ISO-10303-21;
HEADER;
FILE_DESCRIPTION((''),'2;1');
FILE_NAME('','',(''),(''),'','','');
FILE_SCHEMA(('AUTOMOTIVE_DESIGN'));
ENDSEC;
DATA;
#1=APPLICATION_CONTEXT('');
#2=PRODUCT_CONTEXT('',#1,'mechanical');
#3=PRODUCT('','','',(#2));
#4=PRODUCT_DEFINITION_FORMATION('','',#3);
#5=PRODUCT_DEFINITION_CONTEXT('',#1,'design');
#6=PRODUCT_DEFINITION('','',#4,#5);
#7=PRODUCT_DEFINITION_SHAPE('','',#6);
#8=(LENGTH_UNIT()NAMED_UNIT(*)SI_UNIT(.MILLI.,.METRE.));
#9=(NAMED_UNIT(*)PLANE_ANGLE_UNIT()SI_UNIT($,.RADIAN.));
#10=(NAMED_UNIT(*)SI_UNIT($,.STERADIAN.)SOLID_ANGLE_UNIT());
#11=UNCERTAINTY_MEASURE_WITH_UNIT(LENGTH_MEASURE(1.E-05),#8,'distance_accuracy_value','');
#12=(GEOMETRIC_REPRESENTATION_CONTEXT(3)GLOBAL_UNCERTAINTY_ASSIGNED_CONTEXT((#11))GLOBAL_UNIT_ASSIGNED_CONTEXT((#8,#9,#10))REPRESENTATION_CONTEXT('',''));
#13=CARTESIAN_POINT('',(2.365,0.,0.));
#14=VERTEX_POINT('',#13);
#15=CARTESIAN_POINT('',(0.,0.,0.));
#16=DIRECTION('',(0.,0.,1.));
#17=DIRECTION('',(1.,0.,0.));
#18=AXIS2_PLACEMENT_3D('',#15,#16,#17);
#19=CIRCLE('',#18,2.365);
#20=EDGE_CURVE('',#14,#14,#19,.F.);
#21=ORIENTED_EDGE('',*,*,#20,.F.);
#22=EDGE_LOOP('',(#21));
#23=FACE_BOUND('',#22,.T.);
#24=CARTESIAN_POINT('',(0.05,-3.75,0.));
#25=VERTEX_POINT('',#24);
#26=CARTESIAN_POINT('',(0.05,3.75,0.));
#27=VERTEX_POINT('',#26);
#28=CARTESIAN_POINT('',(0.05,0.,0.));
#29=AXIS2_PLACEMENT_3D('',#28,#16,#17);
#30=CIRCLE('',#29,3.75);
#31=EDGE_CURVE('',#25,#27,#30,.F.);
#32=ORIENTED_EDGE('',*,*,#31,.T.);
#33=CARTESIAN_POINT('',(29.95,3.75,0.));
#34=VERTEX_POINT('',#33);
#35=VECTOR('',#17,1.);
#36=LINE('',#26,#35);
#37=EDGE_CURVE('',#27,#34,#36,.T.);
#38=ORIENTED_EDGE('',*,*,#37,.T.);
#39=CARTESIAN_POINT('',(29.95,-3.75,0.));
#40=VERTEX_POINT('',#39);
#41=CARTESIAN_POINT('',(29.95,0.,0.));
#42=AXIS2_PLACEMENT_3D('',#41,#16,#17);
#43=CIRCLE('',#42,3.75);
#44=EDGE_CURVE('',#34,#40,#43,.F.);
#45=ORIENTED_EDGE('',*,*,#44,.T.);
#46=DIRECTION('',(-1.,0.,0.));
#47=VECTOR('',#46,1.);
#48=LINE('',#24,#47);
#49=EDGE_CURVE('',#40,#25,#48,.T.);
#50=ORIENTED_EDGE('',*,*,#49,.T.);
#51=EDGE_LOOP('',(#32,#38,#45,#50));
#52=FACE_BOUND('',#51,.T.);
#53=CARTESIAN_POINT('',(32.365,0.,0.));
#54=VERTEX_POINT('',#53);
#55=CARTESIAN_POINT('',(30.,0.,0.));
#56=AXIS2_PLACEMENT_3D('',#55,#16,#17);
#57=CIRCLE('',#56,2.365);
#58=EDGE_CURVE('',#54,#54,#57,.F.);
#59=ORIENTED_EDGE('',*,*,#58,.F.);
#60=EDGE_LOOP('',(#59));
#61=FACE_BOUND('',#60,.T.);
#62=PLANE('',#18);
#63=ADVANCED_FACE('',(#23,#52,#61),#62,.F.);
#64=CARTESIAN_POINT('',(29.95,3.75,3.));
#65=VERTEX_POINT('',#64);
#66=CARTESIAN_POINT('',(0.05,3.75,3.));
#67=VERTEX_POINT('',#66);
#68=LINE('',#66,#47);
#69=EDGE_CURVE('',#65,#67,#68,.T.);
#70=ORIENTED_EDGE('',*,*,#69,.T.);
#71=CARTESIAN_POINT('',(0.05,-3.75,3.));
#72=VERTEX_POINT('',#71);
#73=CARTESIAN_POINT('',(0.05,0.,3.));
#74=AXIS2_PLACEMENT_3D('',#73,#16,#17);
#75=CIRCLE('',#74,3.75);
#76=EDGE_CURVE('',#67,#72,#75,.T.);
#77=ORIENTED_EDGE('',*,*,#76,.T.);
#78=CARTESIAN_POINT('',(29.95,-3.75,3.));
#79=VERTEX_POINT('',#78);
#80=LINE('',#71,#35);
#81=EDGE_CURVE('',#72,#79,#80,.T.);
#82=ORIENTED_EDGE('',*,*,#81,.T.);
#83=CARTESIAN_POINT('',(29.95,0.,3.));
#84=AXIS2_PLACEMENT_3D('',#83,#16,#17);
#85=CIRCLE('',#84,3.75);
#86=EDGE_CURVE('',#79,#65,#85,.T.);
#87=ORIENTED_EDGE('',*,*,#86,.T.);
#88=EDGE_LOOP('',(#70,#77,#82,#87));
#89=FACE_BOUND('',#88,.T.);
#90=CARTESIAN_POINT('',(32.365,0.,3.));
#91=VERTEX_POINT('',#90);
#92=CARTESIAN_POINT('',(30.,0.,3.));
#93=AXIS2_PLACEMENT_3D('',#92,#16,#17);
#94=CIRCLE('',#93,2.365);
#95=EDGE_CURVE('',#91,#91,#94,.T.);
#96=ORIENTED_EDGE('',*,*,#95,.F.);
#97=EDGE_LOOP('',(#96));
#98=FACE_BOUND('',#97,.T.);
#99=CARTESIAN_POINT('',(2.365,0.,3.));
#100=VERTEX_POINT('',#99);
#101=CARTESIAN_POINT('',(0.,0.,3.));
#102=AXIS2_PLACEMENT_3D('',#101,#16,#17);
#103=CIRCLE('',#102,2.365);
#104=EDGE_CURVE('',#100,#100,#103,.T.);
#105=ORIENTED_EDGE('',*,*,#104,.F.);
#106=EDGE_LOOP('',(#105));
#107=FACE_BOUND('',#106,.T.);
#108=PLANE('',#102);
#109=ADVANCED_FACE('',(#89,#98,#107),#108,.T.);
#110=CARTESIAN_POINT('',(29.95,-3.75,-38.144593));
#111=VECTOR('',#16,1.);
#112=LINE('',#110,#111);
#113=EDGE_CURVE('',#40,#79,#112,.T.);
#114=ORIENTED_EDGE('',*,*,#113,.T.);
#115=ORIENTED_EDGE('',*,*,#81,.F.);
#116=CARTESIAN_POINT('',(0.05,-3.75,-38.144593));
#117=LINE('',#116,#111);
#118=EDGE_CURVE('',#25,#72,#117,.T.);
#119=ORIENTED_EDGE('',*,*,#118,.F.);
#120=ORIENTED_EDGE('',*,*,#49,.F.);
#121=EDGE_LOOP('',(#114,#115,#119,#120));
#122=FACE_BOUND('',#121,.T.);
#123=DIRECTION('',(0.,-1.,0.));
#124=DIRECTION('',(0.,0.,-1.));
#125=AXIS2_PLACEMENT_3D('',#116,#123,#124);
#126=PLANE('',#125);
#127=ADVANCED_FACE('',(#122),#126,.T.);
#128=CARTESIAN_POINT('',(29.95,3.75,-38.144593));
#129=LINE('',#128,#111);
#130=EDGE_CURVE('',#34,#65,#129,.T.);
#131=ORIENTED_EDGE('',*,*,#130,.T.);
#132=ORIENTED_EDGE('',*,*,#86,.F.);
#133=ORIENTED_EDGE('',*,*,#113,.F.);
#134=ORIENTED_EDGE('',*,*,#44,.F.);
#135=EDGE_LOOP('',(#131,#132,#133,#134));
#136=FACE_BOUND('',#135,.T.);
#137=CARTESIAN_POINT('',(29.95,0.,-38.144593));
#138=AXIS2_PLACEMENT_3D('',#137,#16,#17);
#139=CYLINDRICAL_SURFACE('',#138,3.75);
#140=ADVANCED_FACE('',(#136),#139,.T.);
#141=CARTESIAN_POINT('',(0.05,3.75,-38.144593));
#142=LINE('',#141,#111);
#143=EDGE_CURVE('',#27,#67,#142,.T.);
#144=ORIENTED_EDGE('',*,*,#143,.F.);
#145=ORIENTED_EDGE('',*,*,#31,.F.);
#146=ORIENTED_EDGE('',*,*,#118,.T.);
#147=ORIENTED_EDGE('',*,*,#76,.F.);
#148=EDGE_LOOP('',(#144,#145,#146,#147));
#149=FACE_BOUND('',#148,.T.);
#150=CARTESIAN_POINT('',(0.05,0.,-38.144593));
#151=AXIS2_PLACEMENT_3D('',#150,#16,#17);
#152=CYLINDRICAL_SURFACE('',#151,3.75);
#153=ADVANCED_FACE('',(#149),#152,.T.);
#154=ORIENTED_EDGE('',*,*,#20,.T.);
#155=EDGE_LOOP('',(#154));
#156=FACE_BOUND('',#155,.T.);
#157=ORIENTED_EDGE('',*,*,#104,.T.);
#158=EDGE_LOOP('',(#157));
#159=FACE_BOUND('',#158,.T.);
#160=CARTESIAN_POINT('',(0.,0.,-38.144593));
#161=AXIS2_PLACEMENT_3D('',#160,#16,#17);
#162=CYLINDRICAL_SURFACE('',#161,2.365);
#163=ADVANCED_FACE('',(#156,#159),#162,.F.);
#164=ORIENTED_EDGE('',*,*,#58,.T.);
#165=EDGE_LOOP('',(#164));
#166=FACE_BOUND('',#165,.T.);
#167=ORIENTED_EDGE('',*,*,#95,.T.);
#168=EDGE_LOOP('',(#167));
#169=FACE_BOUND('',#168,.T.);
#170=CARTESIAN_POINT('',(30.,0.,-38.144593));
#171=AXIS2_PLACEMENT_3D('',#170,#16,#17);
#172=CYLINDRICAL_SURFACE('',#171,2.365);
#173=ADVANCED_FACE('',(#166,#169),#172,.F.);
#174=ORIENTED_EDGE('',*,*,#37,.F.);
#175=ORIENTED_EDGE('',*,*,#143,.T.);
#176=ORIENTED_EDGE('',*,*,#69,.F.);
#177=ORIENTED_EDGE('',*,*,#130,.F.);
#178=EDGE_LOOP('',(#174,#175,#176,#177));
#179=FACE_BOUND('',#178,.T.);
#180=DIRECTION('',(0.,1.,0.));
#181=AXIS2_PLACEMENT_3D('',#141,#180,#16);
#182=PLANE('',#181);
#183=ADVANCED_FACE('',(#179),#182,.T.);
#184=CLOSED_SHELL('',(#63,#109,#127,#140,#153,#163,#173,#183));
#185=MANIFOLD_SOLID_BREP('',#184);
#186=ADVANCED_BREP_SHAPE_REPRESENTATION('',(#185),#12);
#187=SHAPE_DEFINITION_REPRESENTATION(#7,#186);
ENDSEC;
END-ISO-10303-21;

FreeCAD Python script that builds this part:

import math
import FreeCAD as App
import Part
import Sketcher

V = App.Vector

doc = App.newDocument("Part")
body = doc.addObject("PartDesign::Body", "Body")

# Sketch on XY plane
sketch1 = doc.addObject("Sketcher::SketchObject", "Sketch")
body.addObject(sketch1)
sketch1.AttachmentSupport = (doc.XY_Plane, [""])
sketch1.MapMode = "FlatFace"
sketch1.addGeometry([
    Part.LineSegment(V(30, 3, 0), V(0, 3, 0)),  # 0
    Part.ArcOfCircle(Part.Circle(V(0, 0, 0), V(0, 0, 1), 3), math.radians(90), math.radians(270)),  # 1
    Part.LineSegment(V(0, -3, 0), V(30, -3, 0)),  # 2
    Part.ArcOfCircle(Part.Circle(V(30, 0, 0), V(0, 0, 1), 3), math.radians(-90), math.radians(90)),  # 3
    Part.Circle(V(30, 0, 0), V(0, 0, 1), 2.395),  # 4
    Part.Circle(V(0, 0, 0), V(0, 0, 1), 2.395),  # 5
], False)
sketch1.addConstraint([
    Sketcher.Constraint("Tangent", 0, 2, 1, 1),
    Sketcher.Constraint("Tangent", 1, 2, 2, 1),
    Sketcher.Constraint("Tangent", 2, 2, 3, 1),
    Sketcher.Constraint("Tangent", 3, 2, 0, 1),
    Sketcher.Constraint("Horizontal", 0),
    Sketcher.Constraint("Horizontal", 2),
    Sketcher.Constraint("Coincident", 1, 3, -1, 1),
    Sketcher.Constraint("Coincident", 5, 3, -1, 1),
    Sketcher.Constraint("Coincident", 4, 3, 3, 3),
    Sketcher.Constraint("Equal", 4, 5),
    Sketcher.Constraint("Radius", 1, 3.0),
    Sketcher.Constraint("Diameter", 4, 4.79),
    Sketcher.Constraint("DistanceX", 0, 2, 0, 1, 30.0),
])
pad1 = doc.addObject("PartDesign::Pad", "Pad")
body.addObject(pad1)
pad1.Profile = sketch1
pad1.Length = 3

# Sketch on XY plane
sketch2 = doc.addObject("Sketcher::SketchObject", "Sketch001")
body.addObject(sketch2)
sketch2.AttachmentSupport = (doc.XY_Plane, [""])
sketch2.MapMode = "FlatFace"
sketch2.AttachmentOffset = App.Placement(V(0, 0, 3), App.Rotation())
sketch2.addGeometry([
    Part.LineSegment(V(29.95, 3.75, 0), V(0.05, 3.75, 0)),  # 0
    Part.ArcOfCircle(Part.Circle(V(0.05, 0, 0), V(0, 0, 1), 3.75), math.radians(90), math.radians(270)),  # 1
    Part.LineSegment(V(0.05, -3.75, 0), V(29.95, -3.75, 0)),  # 2
    Part.ArcOfCircle(Part.Circle(V(29.95, 0, 0), V(0, 0, 1), 3.75), math.radians(-90), math.radians(90)),  # 3
    Part.Circle(V(30, 0, 0), V(0, 0, 1), 2.365),  # 4
    Part.Circle(V(0, 0, 0), V(0, 0, 1), 2.365),  # 5
], False)
sketch2.addConstraint([
    Sketcher.Constraint("Tangent", 0, 2, 1, 1),
    Sketcher.Constraint("Tangent", 1, 2, 2, 1),
    Sketcher.Constraint("Tangent", 2, 2, 3, 1),
    Sketcher.Constraint("Tangent", 3, 2, 0, 1),
    Sketcher.Constraint("Horizontal", 0),
    Sketcher.Constraint("Horizontal", 2),
    Sketcher.Constraint("Coincident", 5, 3, -1, 1),
    Sketcher.Constraint("Equal", 4, 5),
    Sketcher.Constraint("PointOnObject", 1, 3, -1),
    Sketcher.Constraint("PointOnObject", 4, 3, -1),
    Sketcher.Constraint("Diameter", 4, 4.73),
    Sketcher.Constraint("Radius", 1, 3.75),
    Sketcher.Constraint("DistanceX", 0, 2, 0, 1, 29.9),
    Sketcher.Constraint("DistanceX", -1, 1, 4, 3, 30.0),
    Sketcher.Constraint("DistanceX", -1, 1, 1, 3, 0.05),
])
pad2 = doc.addObject("PartDesign::Pad", "Pad001")
body.addObject(pad2)
pad2.Profile = sketch2
pad2.Length = 3
pad2.Reversed = True

doc.recompute()
